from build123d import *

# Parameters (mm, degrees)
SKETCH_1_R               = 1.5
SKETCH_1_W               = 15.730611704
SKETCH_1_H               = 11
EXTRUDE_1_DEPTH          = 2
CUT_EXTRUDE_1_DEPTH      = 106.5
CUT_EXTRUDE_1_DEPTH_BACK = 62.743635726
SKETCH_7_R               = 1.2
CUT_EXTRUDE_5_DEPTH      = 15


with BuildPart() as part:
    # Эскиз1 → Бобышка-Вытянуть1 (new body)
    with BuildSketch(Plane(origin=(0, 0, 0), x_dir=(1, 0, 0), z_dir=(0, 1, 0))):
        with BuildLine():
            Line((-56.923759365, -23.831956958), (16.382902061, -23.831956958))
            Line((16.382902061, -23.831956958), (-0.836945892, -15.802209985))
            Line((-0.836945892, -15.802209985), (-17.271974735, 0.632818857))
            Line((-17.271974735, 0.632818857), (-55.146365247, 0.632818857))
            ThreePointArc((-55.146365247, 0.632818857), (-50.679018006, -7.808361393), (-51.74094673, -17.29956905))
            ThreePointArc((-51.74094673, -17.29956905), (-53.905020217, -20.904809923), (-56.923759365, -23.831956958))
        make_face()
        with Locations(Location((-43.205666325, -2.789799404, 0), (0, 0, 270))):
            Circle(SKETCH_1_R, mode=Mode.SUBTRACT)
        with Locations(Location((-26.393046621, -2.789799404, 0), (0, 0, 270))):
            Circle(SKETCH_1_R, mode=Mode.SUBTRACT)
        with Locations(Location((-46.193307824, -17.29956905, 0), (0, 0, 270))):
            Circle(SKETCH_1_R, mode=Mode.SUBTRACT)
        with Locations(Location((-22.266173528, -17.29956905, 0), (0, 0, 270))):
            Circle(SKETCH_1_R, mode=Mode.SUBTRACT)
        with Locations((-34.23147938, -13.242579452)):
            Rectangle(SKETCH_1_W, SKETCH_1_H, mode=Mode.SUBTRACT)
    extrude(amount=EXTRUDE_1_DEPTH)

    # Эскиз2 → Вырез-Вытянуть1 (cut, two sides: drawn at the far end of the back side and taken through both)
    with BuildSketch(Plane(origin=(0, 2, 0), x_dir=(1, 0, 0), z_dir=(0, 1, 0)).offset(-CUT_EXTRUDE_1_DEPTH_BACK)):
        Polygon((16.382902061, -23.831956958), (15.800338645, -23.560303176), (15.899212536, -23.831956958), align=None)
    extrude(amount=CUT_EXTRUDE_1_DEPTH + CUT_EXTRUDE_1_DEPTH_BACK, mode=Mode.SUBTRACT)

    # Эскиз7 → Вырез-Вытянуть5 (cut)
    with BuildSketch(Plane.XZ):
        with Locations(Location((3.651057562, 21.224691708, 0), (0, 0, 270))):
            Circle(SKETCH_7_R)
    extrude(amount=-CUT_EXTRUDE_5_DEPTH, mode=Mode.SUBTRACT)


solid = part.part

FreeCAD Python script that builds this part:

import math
import FreeCAD as App
import Part
import Sketcher
from FreeCAD import Vector
Q = App.Units.Quantity


def add_polygon(sketch, points):
    """Adds a closed chain of lines whose ends are joined by coincident constraints."""
    first, n = sketch.GeometryCount, len(points)
    for a, b in zip(points, points[1:] + points[:1]):
        sketch.addGeometry(Part.LineSegment(App.Vector(*a, 0), App.Vector(*b, 0)), False)
    for i in range(n):
        sketch.addConstraint(Sketcher.Constraint("Coincident", first + i, 2, first + (i + 1) % n, 1))

doc = App.newDocument("Part")
body = doc.addObject("PartDesign::Body", "Body")

# Sketch on XZ plane
sketch1 = doc.addObject("Sketcher::SketchObject", "Sketch")
body.addObject(sketch1)
sketch1.AttachmentSupport = (doc.XZ_Plane, [""])
sketch1.MapMode = "FlatFace"
sketch1.addGeometry(Part.LineSegment(Vector(-56.9, 23.8, 0), Vector(16.4, 23.8, 0)), False)  # 0
sketch1.addGeometry(Part.LineSegment(Vector(16.4, 23.8, 0), Vector(-0.8, 15.8, 0)), False)  # 1
sketch1.addGeometry(Part.LineSegment(Vector(-0.8, 15.8, 0), Vector(-17.3, -0.6, 0)), False)  # 2
sketch1.addGeometry(Part.LineSegment(Vector(-17.3, -0.6, 0), Vector(-55.1, -0.6, 0)), False)  # 3
sketch1.addGeometry(Part.ArcOfCircle(Part.Circle(Vector(-66.6, 10.8, 0), Vector(0, 0, 1), 16.2), math.radians(-45), math.radians(24)), False)  # 4
sketch1.addGeometry(Part.ArcOfCircle(Part.Circle(Vector(-66.6, 10.8, 0), Vector(0, 0, 1), 16.2), math.radians(24), math.radians(53)), False)  # 5
sketch1.addGeometry(Part.Circle(Vector(-46.2, 17.3, 0), Vector(0, 0, 1), 1.5), False)  # 6
add_polygon(sketch1, [(-26.4, 18.7), (-42.1, 18.7), (-42.1, 7.7), (-26.4, 7.7)])  # lines 7-10
sketch1.addGeometry(Part.Circle(Vector(-22.3, 17.3, 0), Vector(0, 0, 1), 1.5), False)  # 11
sketch1.addGeometry(Part.Circle(Vector(-43.2, 2.8, 0), Vector(0, 0, 1), 1.5), False)  # 12
sketch1.addGeometry(Part.Circle(Vector(-26.4, 2.8, 0), Vector(0, 0, 1), 1.5), False)  # 13
sketch1.addConstraint([
    Sketcher.Constraint("Coincident", 0, 2, 1, 1),
    Sketcher.Constraint("Coincident", 1, 2, 2, 1),
    Sketcher.Constraint("Coincident", 2, 2, 3, 1),
    Sketcher.Constraint("Coincident", 3, 2, 4, 1),
    Sketcher.Constraint("Tangent", 4, 2, 5, 1),
    Sketcher.Constraint("Coincident", 5, 2, 0, 1),
    Sketcher.Constraint("Horizontal", 0),
    Sketcher.Constraint("Horizontal", 3),
    Sketcher.Constraint("Horizontal", 7),
    Sketcher.Constraint("Vertical", 8),
    Sketcher.Constraint("Horizontal", 9),
    Sketcher.Constraint("Vertical", 10),
    Sketcher.Constraint("Equal", 4, 5),
    Sketcher.Constraint("Equal", 6, 11),
    Sketcher.Constraint("Equal", 11, 12),
    Sketcher.Constraint("Equal", 12, 13),
    Sketcher.Constraint("Horizontal", 6, 3, 11, 3),
    Sketcher.Constraint("Horizontal", 12, 3, 13, 3),
    Sketcher.Constraint("Horizontal", 11, 3, 4, 2),
    Sketcher.Constraint("Diameter", 6, 3.0),
    Sketcher.Constraint("DistanceY", 8, 2, 8, 1, 11.0),
    Sketcher.Constraint("Angle", 1, Q("-155 deg")),
    Sketcher.Constraint("Angle", 2, Q("-135 deg")),
    Sketcher.Constraint("Distance", 1, 19.0),
    Sketcher.Constraint("DistanceY", 5, 3, 0, 2, 13.0),
    Sketcher.Constraint("DistanceX", 9, 2, 11, 3, 4.1),
    Sketcher.Constraint("Radius", 5, 16.206322),
    Sketcher.Constraint("DistanceX", 0, 1, 0, 2, 73.306661),
    Sketcher.Constraint("DistanceX", 7, 2, 7, 1, 15.730612),
    Sketcher.Constraint("DistanceY", -1, 1, 12, 3, 2.789799),
    Sketcher.Constraint("DistanceX", 13, 3, 1, 2, 25.556101),
    Sketcher.Constraint("DistanceX", 11, 3, 2, 2, 4.994199),
    Sketcher.Constraint("DistanceX", 3, 2, 12, 3, 11.940699),
    Sketcher.Constraint("DistanceY", 3, 2, 8, 2, 8.375398),
    Sketcher.Constraint("Distance", 2, 23.242641),
    Sketcher.Constraint("DistanceY", -1, 1, 6, 3, 17.299569),
    Sketcher.Constraint("DistanceY", -1, 1, 1, 2, 15.80221),
    Sketcher.Constraint("DistanceX", 5, 2, -1, 1, 56.923759),
    Sketcher.Constraint("DistanceX", 5, 3, 6, 3, 20.40748),
])
pad1 = doc.addObject("PartDesign::Pad", "Pad")
body.addObject(pad1)
pad1.Profile = sketch1
pad1.Length = 2
pad1.Reversed = True

# Sketch on XZ plane
sketch2 = doc.addObject("Sketcher::SketchObject", "Sketch001")
body.addObject(sketch2)
sketch2.AttachmentSupport = (doc.XZ_Plane, [""])
sketch2.MapMode = "FlatFace"
sketch2.AttachmentOffset = App.Placement(Vector(0, 0, -2), App.Rotation())
add_polygon(sketch2, [(16.38, 23.83), (15.8, 23.56), (15.9, 23.83)])  # lines 0-2
sketch2.addConstraint([
    Sketcher.Constraint("Horizontal", 2),
    Sketcher.Constraint("Angle", 0, Q("-155 deg")),
    Sketcher.Constraint("Angle", 1, Q("70 deg")),
    Sketcher.Constraint("DistanceX", 2, 1, 2, 2, 0.48369),
    Sketcher.Constraint("DistanceX", -1, 1, 0, 2, 15.800339),
    Sketcher.Constraint("DistanceY", -1, 1, 0, 2, 23.560303),
])
pocket1 = doc.addObject("PartDesign::Pocket", "Pocket")
body.addObject(pocket1)
pocket1.Profile = sketch2
pocket1.Type = "ThroughAll"
pocket1.Midplane = True

# Sketch on XZ plane
sketch3 = doc.addObject("Sketcher::SketchObject", "Sketch002")
body.addObject(sketch3)
sketch3.AttachmentSupport = (doc.XZ_Plane, [""])
sketch3.MapMode = "FlatFace"
sketch3.addGeometry(Part.Circle(Vector(3.7, 21.2, 0), Vector(0, 0, 1), 1.2), False)
sketch3.addConstraint([
    Sketcher.Constraint("Diameter", 0, 2.4),
    Sketcher.Constraint("DistanceY", -1, 1, 0, 3, 21.224692),
    Sketcher.Constraint("DistanceX", -1, 1, 0, 3, 3.651058),
])
pocket2 = doc.addObject("PartDesign::Pocket", "Pocket001")
body.addObject(pocket2)
pocket2.Profile = sketch3
pocket2.Length = 15

doc.recompute()
